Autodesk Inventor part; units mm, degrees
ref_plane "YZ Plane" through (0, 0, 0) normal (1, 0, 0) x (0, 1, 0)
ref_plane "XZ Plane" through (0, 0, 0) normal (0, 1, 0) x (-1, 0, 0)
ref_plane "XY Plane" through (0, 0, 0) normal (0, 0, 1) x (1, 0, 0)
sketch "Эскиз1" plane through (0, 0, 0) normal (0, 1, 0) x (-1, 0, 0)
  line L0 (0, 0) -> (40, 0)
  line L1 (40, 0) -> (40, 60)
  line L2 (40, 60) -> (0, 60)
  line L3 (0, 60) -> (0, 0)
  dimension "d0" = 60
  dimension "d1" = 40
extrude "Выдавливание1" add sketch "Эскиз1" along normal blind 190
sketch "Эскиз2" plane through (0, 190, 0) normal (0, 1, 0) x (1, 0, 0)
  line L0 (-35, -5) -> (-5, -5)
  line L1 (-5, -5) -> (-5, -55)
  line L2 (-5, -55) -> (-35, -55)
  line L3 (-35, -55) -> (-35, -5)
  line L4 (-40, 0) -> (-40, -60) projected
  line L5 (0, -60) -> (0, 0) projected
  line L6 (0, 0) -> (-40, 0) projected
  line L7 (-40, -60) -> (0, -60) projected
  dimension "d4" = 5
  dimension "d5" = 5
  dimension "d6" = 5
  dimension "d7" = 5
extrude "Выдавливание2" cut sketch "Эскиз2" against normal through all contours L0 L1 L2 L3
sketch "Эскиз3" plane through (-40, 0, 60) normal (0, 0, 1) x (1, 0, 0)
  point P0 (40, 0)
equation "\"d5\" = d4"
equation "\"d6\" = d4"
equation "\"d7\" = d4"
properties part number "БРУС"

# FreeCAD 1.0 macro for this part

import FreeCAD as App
import Part
import Sketcher

V = App.Vector

doc = App.newDocument("Part")
body = doc.addObject("PartDesign::Body", "Body")

# Sketch on XZ plane
sketch1 = body.newObject("Sketcher::SketchObject", "Sketch")
sketch1.AttachmentSupport = (doc.getObject("XZ_Plane"), [""])
sketch1.MapMode = "FlatFace"
sketch1.addGeometry([
    Part.LineSegment(V(0, 60, 0), V(0, 0, 0)),
    Part.LineSegment(V(0, 0, 0), V(-40, 0, 0)),
    Part.LineSegment(V(-40, 0, 0), V(-40, 60, 0)),
    Part.LineSegment(V(-40, 60, 0), V(0, 60, 0)),
], False)
sketch1.addConstraint([
    Sketcher.Constraint("Coincident", 0, 2, 1, 1),
    Sketcher.Constraint("Coincident", 1, 2, 2, 1),
    Sketcher.Constraint("Coincident", 2, 2, 3, 1),
    Sketcher.Constraint("Coincident", 3, 2, 0, 1),
    Sketcher.Constraint("Vertical", 0),
    Sketcher.Constraint("Horizontal", 1),
    Sketcher.Constraint("Vertical", 2),
    Sketcher.Constraint("Horizontal", 3),
    Sketcher.Constraint("Coincident", 0, 2, -1, 1),
    Sketcher.Constraint("DistanceX", 1, 2, 1, 1, 40.0),
    Sketcher.Constraint("DistanceY", 0, 2, 0, 1, 60.0),
])
pad1 = body.newObject("PartDesign::Pad", "Pad")
pad1.Profile = sketch1
pad1.Length = 190
pad1.Reversed = True

# Sketch on XZ plane
sketch2 = body.newObject("Sketcher::SketchObject", "Sketch001")
sketch2.AttachmentSupport = (doc.getObject("XZ_Plane"), [""])
sketch2.MapMode = "FlatFace"
sketch2.AttachmentOffset = App.Placement(V(0, 0, -190), App.Rotation())
sketch2.addGeometry([
    Part.LineSegment(V(-5, 5, 0), V(-35, 5, 0)),
    Part.LineSegment(V(-35, 5, 0), V(-35, 55, 0)),
    Part.LineSegment(V(-35, 55, 0), V(-5, 55, 0)),
    Part.LineSegment(V(-5, 55, 0), V(-5, 5, 0)),
], False)
sketch2.addConstraint([
    Sketcher.Constraint("Coincident", 0, 2, 1, 1),
    Sketcher.Constraint("Coincident", 1, 2, 2, 1),
    Sketcher.Constraint("Coincident", 2, 2, 3, 1),
    Sketcher.Constraint("Coincident", 3, 2, 0, 1),
    Sketcher.Constraint("Horizontal", 0),
    Sketcher.Constraint("Vertical", 1),
    Sketcher.Constraint("Horizontal", 2),
    Sketcher.Constraint("Vertical", 3),
    Sketcher.Constraint("DistanceY", -1, 1, 0, 2, 5.0),
    Sketcher.Constraint("DistanceX", 2, 2, -1, 1, 5.0),
    Sketcher.Constraint("DistanceX", 0, 2, 0, 1, 30.0),
    Sketcher.Constraint("DistanceY", 1, 1, 1, 2, 50.0),
])
pocket1 = body.newObject("PartDesign::Pocket", "Pocket")
pocket1.Profile = sketch2
pocket1.Type = "ThroughAll"
pocket1.Reversed = True

doc.recompute()
